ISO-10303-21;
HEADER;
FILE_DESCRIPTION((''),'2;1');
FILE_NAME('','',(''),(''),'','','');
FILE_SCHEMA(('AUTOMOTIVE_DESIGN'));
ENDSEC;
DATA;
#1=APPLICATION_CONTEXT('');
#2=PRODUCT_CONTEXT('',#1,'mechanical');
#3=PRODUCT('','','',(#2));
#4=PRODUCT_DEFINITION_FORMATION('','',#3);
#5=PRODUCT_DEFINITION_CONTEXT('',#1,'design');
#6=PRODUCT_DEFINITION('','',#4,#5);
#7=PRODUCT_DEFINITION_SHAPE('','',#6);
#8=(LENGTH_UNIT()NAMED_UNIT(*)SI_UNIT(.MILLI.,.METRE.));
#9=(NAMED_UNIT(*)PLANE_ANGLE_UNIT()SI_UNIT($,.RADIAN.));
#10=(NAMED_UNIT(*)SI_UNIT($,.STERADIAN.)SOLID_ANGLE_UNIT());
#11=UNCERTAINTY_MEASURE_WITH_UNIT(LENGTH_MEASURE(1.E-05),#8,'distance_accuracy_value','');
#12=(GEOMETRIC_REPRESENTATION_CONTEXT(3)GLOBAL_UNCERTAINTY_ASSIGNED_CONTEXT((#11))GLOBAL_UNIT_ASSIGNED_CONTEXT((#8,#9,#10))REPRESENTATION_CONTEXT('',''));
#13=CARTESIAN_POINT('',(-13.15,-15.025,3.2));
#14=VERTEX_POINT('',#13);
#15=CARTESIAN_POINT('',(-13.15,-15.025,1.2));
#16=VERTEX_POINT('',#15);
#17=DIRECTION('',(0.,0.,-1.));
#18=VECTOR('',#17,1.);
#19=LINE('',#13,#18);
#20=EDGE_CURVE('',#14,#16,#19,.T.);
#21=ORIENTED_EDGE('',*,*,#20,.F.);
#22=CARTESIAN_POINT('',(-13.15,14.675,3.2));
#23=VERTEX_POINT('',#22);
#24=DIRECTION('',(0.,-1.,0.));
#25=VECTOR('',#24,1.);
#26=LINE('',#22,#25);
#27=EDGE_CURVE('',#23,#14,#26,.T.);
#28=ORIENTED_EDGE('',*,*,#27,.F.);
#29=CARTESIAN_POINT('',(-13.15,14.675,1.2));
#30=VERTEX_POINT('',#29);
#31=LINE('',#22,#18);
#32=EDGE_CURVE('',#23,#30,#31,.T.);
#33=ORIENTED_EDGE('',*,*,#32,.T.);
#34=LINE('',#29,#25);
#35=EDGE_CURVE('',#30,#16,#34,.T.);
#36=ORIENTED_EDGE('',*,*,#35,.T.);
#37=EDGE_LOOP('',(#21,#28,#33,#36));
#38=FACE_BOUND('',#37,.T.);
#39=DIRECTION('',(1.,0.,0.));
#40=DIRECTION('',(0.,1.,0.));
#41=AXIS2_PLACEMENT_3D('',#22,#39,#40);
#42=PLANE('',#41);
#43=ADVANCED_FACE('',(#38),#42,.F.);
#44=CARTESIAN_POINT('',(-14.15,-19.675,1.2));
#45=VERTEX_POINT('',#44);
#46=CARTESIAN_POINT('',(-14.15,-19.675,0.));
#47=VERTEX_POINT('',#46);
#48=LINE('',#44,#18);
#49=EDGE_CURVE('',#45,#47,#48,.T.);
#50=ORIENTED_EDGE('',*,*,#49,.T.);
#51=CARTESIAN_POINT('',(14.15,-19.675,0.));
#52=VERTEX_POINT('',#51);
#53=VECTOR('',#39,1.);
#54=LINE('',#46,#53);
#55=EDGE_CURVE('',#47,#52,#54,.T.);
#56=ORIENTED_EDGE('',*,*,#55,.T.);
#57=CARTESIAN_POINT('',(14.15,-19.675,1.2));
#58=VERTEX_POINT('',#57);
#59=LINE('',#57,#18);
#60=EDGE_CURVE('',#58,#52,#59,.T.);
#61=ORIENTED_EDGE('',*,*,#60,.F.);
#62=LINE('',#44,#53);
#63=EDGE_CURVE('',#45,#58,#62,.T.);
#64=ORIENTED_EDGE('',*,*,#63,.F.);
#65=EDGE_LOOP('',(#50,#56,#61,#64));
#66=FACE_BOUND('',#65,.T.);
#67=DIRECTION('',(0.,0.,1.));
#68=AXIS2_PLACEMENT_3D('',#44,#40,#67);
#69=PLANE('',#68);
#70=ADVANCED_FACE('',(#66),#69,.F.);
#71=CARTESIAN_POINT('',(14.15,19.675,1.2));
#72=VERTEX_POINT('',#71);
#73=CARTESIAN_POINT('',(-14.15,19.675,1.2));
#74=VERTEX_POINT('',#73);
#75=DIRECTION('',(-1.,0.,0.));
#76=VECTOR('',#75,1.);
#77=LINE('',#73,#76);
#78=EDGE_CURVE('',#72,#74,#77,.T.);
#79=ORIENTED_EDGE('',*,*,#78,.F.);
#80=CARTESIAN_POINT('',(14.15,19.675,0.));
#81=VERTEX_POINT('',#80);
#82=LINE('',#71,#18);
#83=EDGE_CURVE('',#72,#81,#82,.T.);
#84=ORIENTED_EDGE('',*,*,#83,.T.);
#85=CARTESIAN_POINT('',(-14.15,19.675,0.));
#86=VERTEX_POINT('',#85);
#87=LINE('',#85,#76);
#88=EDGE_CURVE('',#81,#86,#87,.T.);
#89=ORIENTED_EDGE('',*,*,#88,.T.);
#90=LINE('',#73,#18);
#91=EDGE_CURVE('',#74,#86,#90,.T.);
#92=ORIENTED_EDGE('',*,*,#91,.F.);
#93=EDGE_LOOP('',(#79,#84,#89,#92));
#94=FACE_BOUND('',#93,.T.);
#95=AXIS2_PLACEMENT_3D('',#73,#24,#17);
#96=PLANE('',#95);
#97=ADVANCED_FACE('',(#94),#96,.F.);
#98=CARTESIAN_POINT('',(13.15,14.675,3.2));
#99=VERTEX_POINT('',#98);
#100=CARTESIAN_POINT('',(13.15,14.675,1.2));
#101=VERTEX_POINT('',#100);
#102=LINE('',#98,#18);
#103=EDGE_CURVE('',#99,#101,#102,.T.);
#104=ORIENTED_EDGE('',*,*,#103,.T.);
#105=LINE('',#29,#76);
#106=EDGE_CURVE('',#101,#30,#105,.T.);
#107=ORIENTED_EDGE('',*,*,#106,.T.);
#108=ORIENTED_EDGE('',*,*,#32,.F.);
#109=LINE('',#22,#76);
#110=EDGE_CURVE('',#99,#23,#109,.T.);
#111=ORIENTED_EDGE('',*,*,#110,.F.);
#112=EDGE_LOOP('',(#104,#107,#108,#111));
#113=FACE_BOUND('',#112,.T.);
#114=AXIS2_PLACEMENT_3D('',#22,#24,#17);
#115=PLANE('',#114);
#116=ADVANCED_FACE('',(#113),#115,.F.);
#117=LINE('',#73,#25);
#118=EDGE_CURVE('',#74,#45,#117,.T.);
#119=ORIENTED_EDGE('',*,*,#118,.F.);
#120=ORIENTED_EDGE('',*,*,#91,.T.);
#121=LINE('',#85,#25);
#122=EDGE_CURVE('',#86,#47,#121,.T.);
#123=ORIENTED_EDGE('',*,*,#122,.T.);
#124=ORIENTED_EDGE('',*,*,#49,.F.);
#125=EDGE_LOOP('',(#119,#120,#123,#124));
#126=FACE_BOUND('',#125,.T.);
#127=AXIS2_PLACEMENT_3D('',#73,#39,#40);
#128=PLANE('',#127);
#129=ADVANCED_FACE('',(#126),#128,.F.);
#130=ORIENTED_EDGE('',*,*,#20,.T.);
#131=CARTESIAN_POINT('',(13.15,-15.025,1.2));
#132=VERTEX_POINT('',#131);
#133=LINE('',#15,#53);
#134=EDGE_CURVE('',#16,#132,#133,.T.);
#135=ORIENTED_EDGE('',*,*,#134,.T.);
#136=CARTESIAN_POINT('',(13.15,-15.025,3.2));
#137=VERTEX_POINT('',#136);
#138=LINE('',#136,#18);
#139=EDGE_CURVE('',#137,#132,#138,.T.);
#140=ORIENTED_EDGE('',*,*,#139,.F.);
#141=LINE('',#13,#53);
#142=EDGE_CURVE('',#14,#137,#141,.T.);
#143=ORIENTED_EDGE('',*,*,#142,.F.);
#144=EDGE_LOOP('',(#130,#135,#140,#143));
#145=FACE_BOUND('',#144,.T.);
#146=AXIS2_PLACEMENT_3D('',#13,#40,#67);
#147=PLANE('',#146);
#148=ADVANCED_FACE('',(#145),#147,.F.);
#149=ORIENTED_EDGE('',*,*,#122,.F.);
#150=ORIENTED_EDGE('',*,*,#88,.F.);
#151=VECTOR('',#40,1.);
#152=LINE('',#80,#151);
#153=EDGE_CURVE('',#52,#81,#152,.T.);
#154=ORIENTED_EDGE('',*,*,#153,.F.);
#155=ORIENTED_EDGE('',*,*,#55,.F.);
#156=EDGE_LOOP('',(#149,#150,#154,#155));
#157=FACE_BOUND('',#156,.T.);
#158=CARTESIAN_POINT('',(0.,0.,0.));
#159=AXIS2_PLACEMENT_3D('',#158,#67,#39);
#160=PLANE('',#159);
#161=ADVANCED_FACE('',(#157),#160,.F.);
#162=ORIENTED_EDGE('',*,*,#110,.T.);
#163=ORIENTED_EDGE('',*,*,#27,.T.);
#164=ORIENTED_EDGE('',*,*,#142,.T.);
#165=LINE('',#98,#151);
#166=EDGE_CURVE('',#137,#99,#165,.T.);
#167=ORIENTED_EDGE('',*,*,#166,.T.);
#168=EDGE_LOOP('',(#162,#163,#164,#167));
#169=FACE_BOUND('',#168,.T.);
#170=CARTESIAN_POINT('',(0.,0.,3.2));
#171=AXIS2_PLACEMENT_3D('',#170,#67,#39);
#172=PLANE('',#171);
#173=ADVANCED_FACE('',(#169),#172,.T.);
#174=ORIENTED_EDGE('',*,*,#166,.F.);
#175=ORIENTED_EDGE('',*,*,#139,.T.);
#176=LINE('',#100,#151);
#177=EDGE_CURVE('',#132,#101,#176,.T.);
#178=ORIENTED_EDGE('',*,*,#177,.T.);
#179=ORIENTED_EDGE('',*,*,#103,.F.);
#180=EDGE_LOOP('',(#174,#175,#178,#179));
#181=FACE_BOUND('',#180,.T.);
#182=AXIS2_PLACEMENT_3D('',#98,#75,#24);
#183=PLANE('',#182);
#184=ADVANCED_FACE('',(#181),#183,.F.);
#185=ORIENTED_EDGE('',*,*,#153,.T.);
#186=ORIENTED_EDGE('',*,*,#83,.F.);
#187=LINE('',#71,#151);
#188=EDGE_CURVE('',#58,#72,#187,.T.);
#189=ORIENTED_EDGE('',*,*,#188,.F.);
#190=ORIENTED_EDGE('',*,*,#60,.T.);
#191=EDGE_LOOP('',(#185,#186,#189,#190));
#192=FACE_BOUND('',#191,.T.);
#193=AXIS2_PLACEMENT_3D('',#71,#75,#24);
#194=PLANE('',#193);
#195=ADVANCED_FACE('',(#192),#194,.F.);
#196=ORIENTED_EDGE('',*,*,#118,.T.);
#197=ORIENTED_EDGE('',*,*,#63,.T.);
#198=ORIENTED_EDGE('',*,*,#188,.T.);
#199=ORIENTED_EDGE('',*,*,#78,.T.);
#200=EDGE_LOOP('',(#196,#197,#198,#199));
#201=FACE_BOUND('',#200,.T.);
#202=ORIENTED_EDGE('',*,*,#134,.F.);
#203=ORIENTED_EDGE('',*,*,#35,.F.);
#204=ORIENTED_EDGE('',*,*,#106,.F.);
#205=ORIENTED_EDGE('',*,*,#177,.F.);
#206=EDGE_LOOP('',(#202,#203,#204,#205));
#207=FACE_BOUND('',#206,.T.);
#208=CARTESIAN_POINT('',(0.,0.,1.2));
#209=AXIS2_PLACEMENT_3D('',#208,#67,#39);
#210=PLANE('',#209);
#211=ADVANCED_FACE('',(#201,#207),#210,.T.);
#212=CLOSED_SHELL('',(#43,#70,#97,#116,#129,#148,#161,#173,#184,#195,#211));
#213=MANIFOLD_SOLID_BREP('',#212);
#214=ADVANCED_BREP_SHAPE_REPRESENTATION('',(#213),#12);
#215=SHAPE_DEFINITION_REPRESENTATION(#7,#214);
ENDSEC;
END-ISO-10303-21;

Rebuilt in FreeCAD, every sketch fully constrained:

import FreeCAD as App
import Part
import Sketcher
from FreeCAD import Vector
Q = App.Units.Quantity

doc = App.newDocument("Part")
body = doc.addObject("PartDesign::Body", "Body")

sketch1 = body.newObject("Sketcher::SketchObject", "Sketch")
sketch1.AttachmentSupport = (doc.getObject("XY_Plane"), [""])
sketch1.MapMode = "FlatFace"
sketch1.addGeometry([
    Part.LineSegment(Vector(-14.15, 19.675, 0), Vector(-14.15, -19.675, 0)),
    Part.LineSegment(Vector(-14.15, -19.675, 0), Vector(14.15, -19.675, 0)),
    Part.LineSegment(Vector(14.15, -19.675, 0), Vector(14.15, 19.675, 0)),
    Part.LineSegment(Vector(14.15, 19.675, 0), Vector(-14.15, 19.675, 0)),
], False)
sketch1.addConstraint([
    Sketcher.Constraint("Coincident", 0, 2, 1, 1),
    Sketcher.Constraint("Coincident", 1, 2, 2, 1),
    Sketcher.Constraint("Coincident", 2, 2, 3, 1),
    Sketcher.Constraint("Coincident", 3, 2, 0, 1),
    Sketcher.Constraint("Vertical", 0),
    Sketcher.Constraint("Horizontal", 1),
    Sketcher.Constraint("Vertical", 2),
    Sketcher.Constraint("Horizontal", 3),
    Sketcher.Constraint("Symmetric", 0, 2, 2, 2, -1, 1),
    Sketcher.Constraint("DistanceX", 1, 1, 1, 2, Q("28.3 mm")),
    Sketcher.Constraint("DistanceY", 0, 2, 0, 1, Q("39.35 mm")),
])
pad1 = body.newObject("PartDesign::Pad", "Pad")
pad1.Profile = sketch1
pad1.Length = 1.2

sketch2 = body.newObject("Sketcher::SketchObject", "Sketch001")
sketch2.AttachmentSupport = (doc.getObject("XY_Plane"), [""])
sketch2.MapMode = "FlatFace"
sketch2.AttachmentOffset = App.Placement(Vector(0, 0, 1.2), App.Rotation())
sketch2.addGeometry([
    Part.LineSegment(Vector(-13.15, 14.675, 0), Vector(-13.15, -15.025, 0)),
    Part.LineSegment(Vector(-13.15, -15.025, 0), Vector(13.15, -15.025, 0)),
    Part.LineSegment(Vector(13.15, -15.025, 0), Vector(13.15, 14.675, 0)),
    Part.LineSegment(Vector(13.15, 14.675, 0), Vector(-13.15, 14.675, 0)),
], False)
sketch2.addConstraint([
    Sketcher.Constraint("Coincident", 0, 2, 1, 1),
    Sketcher.Constraint("Coincident", 1, 2, 2, 1),
    Sketcher.Constraint("Coincident", 2, 2, 3, 1),
    Sketcher.Constraint("Coincident", 3, 2, 0, 1),
    Sketcher.Constraint("Vertical", 0),
    Sketcher.Constraint("Horizontal", 1),
    Sketcher.Constraint("Vertical", 2),
    Sketcher.Constraint("Horizontal", 3),
    Sketcher.Constraint("DistanceX", 1, 1, 1, 2, Q("26.3 mm")),
    Sketcher.Constraint("DistanceY", 0, 2, 0, 1, Q("29.7 mm")),
    Sketcher.Constraint("DistanceX", 0, 2, -1, 1, Q("13.15 mm")),
    Sketcher.Constraint("DistanceY", 0, 2, -1, 1, Q("15.025 mm")),
])
pad2 = body.newObject("PartDesign::Pad", "Pad001")
pad2.Profile = sketch2
pad2.Length = 2

doc.recompute()
